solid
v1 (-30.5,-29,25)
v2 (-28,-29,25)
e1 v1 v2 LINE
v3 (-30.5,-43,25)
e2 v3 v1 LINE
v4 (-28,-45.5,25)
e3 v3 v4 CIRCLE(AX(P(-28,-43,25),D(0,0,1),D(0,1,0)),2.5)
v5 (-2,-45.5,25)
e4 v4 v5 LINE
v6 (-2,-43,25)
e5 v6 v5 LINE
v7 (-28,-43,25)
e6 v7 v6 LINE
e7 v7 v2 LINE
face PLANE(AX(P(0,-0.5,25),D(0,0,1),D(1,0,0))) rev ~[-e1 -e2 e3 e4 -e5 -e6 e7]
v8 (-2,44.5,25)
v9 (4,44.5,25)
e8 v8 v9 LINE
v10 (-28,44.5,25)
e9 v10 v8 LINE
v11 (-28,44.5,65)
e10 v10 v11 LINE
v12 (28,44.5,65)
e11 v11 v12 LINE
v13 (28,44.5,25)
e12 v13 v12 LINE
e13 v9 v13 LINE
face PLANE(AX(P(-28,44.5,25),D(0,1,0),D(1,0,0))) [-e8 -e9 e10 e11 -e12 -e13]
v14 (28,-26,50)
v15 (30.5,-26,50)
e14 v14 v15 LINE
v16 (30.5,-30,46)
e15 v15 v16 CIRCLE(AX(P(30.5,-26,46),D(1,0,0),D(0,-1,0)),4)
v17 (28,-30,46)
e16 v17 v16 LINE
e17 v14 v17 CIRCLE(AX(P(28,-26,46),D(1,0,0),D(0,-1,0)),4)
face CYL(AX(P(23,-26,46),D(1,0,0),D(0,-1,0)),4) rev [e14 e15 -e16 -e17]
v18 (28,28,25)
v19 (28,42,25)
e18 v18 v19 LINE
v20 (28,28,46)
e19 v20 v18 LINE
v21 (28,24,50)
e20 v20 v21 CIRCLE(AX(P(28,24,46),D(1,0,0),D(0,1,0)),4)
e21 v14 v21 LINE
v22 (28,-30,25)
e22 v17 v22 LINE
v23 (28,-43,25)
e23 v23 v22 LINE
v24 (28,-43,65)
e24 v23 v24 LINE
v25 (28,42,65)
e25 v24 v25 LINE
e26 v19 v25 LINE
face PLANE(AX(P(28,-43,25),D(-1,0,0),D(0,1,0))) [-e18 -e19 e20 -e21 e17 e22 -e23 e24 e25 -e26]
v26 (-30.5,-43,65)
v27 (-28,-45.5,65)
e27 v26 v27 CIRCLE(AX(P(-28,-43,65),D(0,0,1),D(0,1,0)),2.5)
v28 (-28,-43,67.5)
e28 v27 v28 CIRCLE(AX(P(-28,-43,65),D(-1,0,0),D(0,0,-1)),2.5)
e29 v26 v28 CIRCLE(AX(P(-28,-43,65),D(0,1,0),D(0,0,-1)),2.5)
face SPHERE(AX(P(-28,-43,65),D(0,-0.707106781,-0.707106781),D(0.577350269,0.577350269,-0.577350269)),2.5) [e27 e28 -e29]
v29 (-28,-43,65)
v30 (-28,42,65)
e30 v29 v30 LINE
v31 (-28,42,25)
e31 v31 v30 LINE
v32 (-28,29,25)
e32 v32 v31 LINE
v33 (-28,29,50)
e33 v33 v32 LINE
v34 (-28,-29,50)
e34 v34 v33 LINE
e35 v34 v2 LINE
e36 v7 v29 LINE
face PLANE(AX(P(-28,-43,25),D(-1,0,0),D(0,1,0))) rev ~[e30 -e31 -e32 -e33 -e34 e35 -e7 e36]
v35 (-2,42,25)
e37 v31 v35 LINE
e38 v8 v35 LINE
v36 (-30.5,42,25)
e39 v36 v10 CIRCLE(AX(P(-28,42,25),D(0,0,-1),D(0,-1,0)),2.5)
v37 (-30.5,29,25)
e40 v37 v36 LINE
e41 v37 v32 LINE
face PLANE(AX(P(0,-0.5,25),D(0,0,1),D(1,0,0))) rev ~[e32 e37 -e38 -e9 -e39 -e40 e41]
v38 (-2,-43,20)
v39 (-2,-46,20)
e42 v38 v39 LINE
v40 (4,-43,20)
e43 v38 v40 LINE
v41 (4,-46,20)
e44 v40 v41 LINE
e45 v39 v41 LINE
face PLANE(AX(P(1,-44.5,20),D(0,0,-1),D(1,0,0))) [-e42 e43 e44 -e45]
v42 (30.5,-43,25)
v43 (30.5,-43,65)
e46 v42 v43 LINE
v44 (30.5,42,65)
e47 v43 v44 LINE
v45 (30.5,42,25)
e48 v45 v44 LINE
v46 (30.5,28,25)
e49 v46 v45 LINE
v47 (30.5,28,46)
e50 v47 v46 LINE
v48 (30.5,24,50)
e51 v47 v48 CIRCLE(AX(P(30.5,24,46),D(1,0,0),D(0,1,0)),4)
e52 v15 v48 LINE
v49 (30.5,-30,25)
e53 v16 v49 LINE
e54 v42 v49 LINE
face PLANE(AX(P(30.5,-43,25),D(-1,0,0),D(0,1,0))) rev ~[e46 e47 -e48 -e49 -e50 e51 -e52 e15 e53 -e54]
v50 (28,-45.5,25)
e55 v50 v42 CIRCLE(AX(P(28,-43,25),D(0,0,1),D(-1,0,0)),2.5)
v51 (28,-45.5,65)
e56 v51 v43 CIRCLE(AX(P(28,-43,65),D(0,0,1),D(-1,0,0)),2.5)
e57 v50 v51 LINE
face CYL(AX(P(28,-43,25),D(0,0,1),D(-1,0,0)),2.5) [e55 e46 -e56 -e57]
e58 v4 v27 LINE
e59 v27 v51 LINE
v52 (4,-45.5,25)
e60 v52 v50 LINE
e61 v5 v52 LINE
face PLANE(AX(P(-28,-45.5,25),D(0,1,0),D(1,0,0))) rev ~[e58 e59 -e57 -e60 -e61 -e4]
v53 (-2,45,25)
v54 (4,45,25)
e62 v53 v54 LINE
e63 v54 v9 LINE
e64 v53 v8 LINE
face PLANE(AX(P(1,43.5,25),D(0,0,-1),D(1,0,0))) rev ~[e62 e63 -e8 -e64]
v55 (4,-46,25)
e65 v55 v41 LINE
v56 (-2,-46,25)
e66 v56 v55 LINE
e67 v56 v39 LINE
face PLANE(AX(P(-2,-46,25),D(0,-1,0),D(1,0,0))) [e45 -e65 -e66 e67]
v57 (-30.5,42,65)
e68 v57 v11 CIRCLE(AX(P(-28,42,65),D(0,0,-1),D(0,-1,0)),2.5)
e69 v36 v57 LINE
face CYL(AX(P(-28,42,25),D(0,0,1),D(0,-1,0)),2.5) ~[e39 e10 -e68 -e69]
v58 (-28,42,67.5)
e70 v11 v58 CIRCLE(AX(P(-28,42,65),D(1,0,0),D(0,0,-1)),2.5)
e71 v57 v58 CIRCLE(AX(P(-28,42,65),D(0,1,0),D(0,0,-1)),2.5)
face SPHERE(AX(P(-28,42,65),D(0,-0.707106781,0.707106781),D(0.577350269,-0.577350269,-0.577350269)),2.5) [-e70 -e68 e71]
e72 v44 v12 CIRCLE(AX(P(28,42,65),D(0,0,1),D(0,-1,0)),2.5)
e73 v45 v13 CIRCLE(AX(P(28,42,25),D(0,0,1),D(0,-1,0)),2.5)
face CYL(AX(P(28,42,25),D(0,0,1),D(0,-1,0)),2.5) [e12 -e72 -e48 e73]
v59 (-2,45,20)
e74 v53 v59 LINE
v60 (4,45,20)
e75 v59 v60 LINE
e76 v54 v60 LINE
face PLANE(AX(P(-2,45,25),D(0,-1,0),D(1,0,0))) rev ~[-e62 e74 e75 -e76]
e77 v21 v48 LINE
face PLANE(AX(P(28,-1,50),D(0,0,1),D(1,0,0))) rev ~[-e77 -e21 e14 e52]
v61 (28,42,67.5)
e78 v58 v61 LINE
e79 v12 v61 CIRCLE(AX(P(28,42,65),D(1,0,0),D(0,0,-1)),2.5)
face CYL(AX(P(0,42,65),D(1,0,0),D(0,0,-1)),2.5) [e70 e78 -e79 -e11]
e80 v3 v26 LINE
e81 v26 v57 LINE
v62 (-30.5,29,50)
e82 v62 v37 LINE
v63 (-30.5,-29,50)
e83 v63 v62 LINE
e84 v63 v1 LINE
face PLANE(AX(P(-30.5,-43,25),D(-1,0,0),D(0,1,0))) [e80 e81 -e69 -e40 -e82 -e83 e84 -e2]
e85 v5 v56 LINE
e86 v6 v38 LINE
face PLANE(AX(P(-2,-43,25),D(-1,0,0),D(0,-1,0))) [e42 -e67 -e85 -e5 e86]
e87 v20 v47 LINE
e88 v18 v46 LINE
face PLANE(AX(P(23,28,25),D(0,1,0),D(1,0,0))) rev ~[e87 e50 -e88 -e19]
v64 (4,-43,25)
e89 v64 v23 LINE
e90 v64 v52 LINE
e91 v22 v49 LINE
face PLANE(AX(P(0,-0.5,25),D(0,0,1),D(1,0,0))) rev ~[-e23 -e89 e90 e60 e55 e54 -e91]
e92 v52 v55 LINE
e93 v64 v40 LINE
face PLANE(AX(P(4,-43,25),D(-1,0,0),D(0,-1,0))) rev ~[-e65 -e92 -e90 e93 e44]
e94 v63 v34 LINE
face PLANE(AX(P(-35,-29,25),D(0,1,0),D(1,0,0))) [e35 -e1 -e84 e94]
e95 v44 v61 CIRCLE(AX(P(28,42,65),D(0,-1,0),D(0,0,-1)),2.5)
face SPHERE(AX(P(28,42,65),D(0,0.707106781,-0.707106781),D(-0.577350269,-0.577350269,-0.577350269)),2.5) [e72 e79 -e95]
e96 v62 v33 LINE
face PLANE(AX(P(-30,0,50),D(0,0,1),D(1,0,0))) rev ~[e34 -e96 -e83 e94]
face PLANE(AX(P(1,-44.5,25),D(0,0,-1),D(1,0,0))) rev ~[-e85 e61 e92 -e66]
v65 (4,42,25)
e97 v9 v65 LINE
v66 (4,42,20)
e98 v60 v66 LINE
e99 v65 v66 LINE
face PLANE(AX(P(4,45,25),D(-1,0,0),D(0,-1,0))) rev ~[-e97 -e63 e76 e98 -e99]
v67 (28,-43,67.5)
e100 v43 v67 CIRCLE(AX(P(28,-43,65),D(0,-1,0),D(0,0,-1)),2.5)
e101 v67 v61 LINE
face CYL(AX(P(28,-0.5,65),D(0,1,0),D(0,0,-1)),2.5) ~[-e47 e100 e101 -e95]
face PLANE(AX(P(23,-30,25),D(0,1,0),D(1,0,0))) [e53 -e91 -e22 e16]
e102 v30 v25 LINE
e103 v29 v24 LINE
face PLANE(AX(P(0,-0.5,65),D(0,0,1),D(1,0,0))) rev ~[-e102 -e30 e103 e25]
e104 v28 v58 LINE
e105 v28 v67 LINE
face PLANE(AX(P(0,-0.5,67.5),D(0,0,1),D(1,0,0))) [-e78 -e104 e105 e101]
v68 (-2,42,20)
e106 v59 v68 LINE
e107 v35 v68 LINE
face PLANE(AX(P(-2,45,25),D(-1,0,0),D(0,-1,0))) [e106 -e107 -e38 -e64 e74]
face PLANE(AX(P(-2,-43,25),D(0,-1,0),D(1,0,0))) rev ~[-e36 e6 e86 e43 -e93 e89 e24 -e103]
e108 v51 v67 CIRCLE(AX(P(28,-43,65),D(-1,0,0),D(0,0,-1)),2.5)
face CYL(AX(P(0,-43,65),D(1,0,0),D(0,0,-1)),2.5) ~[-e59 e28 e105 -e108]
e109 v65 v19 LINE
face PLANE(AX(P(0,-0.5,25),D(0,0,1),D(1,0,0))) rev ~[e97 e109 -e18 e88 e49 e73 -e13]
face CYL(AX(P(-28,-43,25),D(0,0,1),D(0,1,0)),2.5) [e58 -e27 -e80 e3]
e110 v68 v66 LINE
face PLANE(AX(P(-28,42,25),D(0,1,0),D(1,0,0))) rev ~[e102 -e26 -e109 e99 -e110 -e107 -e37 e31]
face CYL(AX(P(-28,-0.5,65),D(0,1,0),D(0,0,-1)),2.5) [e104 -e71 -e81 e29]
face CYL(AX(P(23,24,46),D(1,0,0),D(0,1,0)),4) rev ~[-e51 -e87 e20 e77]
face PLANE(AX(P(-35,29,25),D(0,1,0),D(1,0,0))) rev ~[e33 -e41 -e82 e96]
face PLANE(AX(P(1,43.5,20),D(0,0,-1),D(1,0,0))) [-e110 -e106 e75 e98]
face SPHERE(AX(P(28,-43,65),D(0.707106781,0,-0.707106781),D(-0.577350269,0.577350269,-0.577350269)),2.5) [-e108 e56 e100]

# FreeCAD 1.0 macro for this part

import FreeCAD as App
import Part
import Sketcher

V = App.Vector
Q = App.Units.Quantity


def edges_at(feature, points):
    """Names of the edges that pass closest to the given points."""
    edges = feature.Shape.Edges
    near = lambda p: min(range(len(edges)), key=lambda i: edges[i].distToShape(Part.Vertex(*p))[0])
    return sorted({f"Edge{near(p) + 1}" for p in points})


def faces_at(feature, points):
    """Names of the faces that lie closest to the given points."""
    faces = feature.Shape.Faces
    near = lambda p: min(range(len(faces)), key=lambda i: faces[i].distToShape(Part.Vertex(*p))[0])
    return sorted({f"Face{near(p) + 1}" for p in points})

doc = App.newDocument("Part")
params = doc.addObject("Spreadsheet::Sheet", "Params")
for row, (alias, value) in enumerate([
    ("sketch1_width", "10 mm"),
    ("sketch1_height", "58 mm"),
    ("pad1_length", "25 mm"),
    ("fillet_radius", "4 mm"),
    ("sketch2_width", "10 mm"),
    ("sketch2_height", "58 mm"),
    ("pad2_length", "25 mm"),
    ("sketch3_width", "56 mm"),
    ("sketch3_height", "85 mm"),
    ("pad3_length", "40 mm"),
    ("thickness_wall", "2.5 mm"),
    ("sketch4_width", "6 mm"),
    ("sketch4_height", "3 mm"),
    ("pad4_length", "5 mm"),
], start=1):
    params.set(f"A{row}", alias)
    params.set(f"B{row}", "=" + value)
    params.setAlias(f"B{row}", alias)

body = doc.addObject("PartDesign::Body", "Body")

# Sketch on XY plane
sketch1 = body.newObject("Sketcher::SketchObject", "Sketch")
sketch1.AttachmentSupport = (doc.getObject("XY_Plane"), [""])
sketch1.MapMode = "FlatFace"
sketch1.AttachmentOffset = App.Placement(V(0, 0, 25), App.Rotation())
sketch1.addGeometry([
    Part.LineSegment(V(23, 28, 0), V(23, -30, 0)),
    Part.LineSegment(V(23, -30, 0), V(33, -30, 0)),
    Part.LineSegment(V(33, -30, 0), V(33, 28, 0)),
    Part.LineSegment(V(33, 28, 0), V(23, 28, 0)),
], False)
sketch1.addConstraint([
    Sketcher.Constraint("Coincident", 0, 2, 1, 1),
    Sketcher.Constraint("Coincident", 1, 2, 2, 1),
    Sketcher.Constraint("Coincident", 2, 2, 3, 1),
    Sketcher.Constraint("Coincident", 3, 2, 0, 1),
    Sketcher.Constraint("Vertical", 0),
    Sketcher.Constraint("Horizontal", 1),
    Sketcher.Constraint("Vertical", 2),
    Sketcher.Constraint("Horizontal", 3),
    Sketcher.Constraint("DistanceX", 1, 1, 1, 2, Q("10 mm")),
    Sketcher.Constraint("DistanceY", 0, 2, 0, 1, Q("58 mm")),
    Sketcher.Constraint("DistanceX", -1, 1, 0, 2, Q("23 mm")),
    Sketcher.Constraint("DistanceY", 0, 2, -1, 1, Q("30 mm")),
])
sketch1.setExpression("Constraints[8]", "Params.sketch1_width")
sketch1.setExpression("Constraints[9]", "Params.sketch1_height")
pad1 = body.newObject("PartDesign::Pad", "Pad")
pad1.Profile = sketch1
pad1.setExpression("Length", "Params.pad1_length")
doc.recompute()

fillet = body.newObject("PartDesign::Fillet", "Fillet")
fillet.Base = (pad1, edges_at(pad1, [(28, -30, 50), (28, 28, 50)]))
fillet.setExpression("Radius", "Params.fillet_radius")
body2 = doc.addObject("PartDesign::Body", "Body001")

# Sketch on XY plane
sketch2 = body2.newObject("Sketcher::SketchObject", "Sketch001")
sketch2.AttachmentSupport = (doc.getObject("XY_Plane001"), [""])
sketch2.MapMode = "FlatFace"
sketch2.AttachmentOffset = App.Placement(V(0, 0, 25), App.Rotation())
sketch2.addGeometry([
    Part.LineSegment(V(-36, 28, 0), V(-36, -30, 0)),
    Part.LineSegment(V(-36, -30, 0), V(-26, -30, 0)),
    Part.LineSegment(V(-26, -30, 0), V(-26, 28, 0)),
    Part.LineSegment(V(-26, 28, 0), V(-36, 28, 0)),
], False)
sketch2.addConstraint([
    Sketcher.Constraint("Coincident", 0, 2, 1, 1),
    Sketcher.Constraint("Coincident", 1, 2, 2, 1),
    Sketcher.Constraint("Coincident", 2, 2, 3, 1),
    Sketcher.Constraint("Coincident", 3, 2, 0, 1),
    Sketcher.Constraint("Vertical", 0),
    Sketcher.Constraint("Horizontal", 1),
    Sketcher.Constraint("Vertical", 2),
    Sketcher.Constraint("Horizontal", 3),
    Sketcher.Constraint("DistanceX", 1, 1, 1, 2, Q("10 mm")),
    Sketcher.Constraint("DistanceY", 0, 2, 0, 1, Q("58 mm")),
    Sketcher.Constraint("DistanceX", 0, 2, -1, 1, Q("36 mm")),
    Sketcher.Constraint("DistanceY", 0, 2, -1, 1, Q("30 mm")),
])
sketch2.setExpression("Constraints[8]", "Params.sketch2_width")
sketch2.setExpression("Constraints[9]", "Params.sketch2_height")
pad2 = body2.newObject("PartDesign::Pad", "Pad001")
pad2.Profile = sketch2
pad2.setExpression("Length", "Params.pad2_length")
body3 = doc.addObject("PartDesign::Body", "Body002")

# Sketch on XY plane
sketch3 = body3.newObject("Sketcher::SketchObject", "Sketch002")
sketch3.AttachmentSupport = (doc.getObject("XY_Plane002"), [""])
sketch3.MapMode = "FlatFace"
sketch3.AttachmentOffset = App.Placement(V(0, 0, 38), App.Rotation())
sketch3.addGeometry([
    Part.LineSegment(V(-31, 39, 0), V(-31, -46, 0)),
    Part.LineSegment(V(-31, -46, 0), V(25, -46, 0)),
    Part.LineSegment(V(25, -46, 0), V(25, 39, 0)),
    Part.LineSegment(V(25, 39, 0), V(-31, 39, 0)),
], False)
sketch3.addConstraint([
    Sketcher.Constraint("Coincident", 0, 2, 1, 1),
    Sketcher.Constraint("Coincident", 1, 2, 2, 1),
    Sketcher.Constraint("Coincident", 2, 2, 3, 1),
    Sketcher.Constraint("Coincident", 3, 2, 0, 1),
    Sketcher.Constraint("Vertical", 0),
    Sketcher.Constraint("Horizontal", 1),
    Sketcher.Constraint("Vertical", 2),
    Sketcher.Constraint("Horizontal", 3),
    Sketcher.Constraint("DistanceX", 1, 1, 1, 2, Q("56 mm")),
    Sketcher.Constraint("DistanceY", 0, 2, 0, 1, Q("85 mm")),
    Sketcher.Constraint("DistanceX", 0, 2, -1, 1, Q("31 mm")),
    Sketcher.Constraint("DistanceY", 0, 2, -1, 1, Q("46 mm")),
])
sketch3.setExpression("Constraints[8]", "Params.sketch3_width")
sketch3.setExpression("Constraints[9]", "Params.sketch3_height")
pad3 = body3.newObject("PartDesign::Pad", "Pad002")
pad3.Profile = sketch3
pad3.setExpression("Length", "Params.pad3_length")
doc.recompute()

thickness = body3.newObject("PartDesign::Thickness", "Thickness")
thickness.Base = (pad3, faces_at(pad3, [(-3, -3.5, 38)]))
thickness.setExpression("Value", "Params.thickness_wall")
thickness.Reversed = False
thickness.Join = "Arc"
body4 = doc.addObject("PartDesign::Body", "Body003")
doc.recompute()

body3.Placement = App.Placement(V(2, 2, -13), App.Rotation(V(0, 0, 1), 0))
boolean = body4.newObject("PartDesign::Boolean", "Boolean")
boolean.Type = "Fuse"
boolean.addObjects([body3])
doc.recompute()

boolean2 = body4.newObject("PartDesign::Boolean", "Boolean001")
boolean2.Type = "Cut"
boolean2.addObjects([body2])
body5 = doc.addObject("PartDesign::Body", "Body004")
doc.recompute()

body4.Placement = App.Placement(V(1, 1, 0), App.Rotation(V(0, 0, 1), 0))
boolean3 = body5.newObject("PartDesign::Boolean", "Boolean002")
boolean3.Type = "Fuse"
boolean3.addObjects([body4])

# Sketch on XY plane
sketch4 = body5.newObject("Sketcher::SketchObject", "Sketch003")
sketch4.AttachmentSupport = (doc.getObject("XY_Plane004"), [""])
sketch4.MapMode = "FlatFace"
sketch4.AttachmentOffset = App.Placement(V(0, 0, 25), App.Rotation())
sketch4.addGeometry([
    Part.LineSegment(V(-2, -46, 0), V(-2, -43, 0)),  # 0
    Part.LineSegment(V(-2, -43, 0), V(4, -43, 0)),  # 1
    Part.LineSegment(V(4, -43, 0), V(4, -46, 0)),  # 2
    Part.LineSegment(V(4, -46, 0), V(-2, -46, 0)),  # 3
    Part.LineSegment(V(-2, 42, 0), V(-2, 45, 0)),  # 4
    Part.LineSegment(V(-2, 45, 0), V(4, 45, 0)),  # 5
    Part.LineSegment(V(4, 45, 0), V(4, 42, 0)),  # 6
    Part.LineSegment(V(4, 42, 0), V(-2, 42, 0)),  # 7
], False)
sketch4.addConstraint([
    Sketcher.Constraint("Coincident", 0, 2, 1, 1),
    Sketcher.Constraint("Coincident", 1, 2, 2, 1),
    Sketcher.Constraint("Coincident", 2, 2, 3, 1),
    Sketcher.Constraint("Coincident", 3, 2, 0, 1),
    Sketcher.Constraint("Coincident", 4, 2, 5, 1),
    Sketcher.Constraint("Coincident", 5, 2, 6, 1),
    Sketcher.Constraint("Coincident", 6, 2, 7, 1),
    Sketcher.Constraint("Coincident", 7, 2, 4, 1),
    Sketcher.Constraint("Vertical", 0),
    Sketcher.Constraint("Horizontal", 1),
    Sketcher.Constraint("Vertical", 2),
    Sketcher.Constraint("Horizontal", 3),
    Sketcher.Constraint("Vertical", 4),
    Sketcher.Constraint("Horizontal", 5),
    Sketcher.Constraint("Vertical", 6),
    Sketcher.Constraint("Horizontal", 7),
    Sketcher.Constraint("Vertical", 3, 2, 4, 2),
    Sketcher.Constraint("Vertical", 2, 2, 5, 2),
    Sketcher.Constraint("Equal", 2, 4),
    Sketcher.Constraint("DistanceX", 1, 1, 1, 2, Q("6 mm")),
    Sketcher.Constraint("DistanceY", 0, 1, 0, 2, Q("3 mm")),
    Sketcher.Constraint("DistanceX", 0, 2, -1, 1, Q("2 mm")),
    Sketcher.Constraint("DistanceY", 0, 2, -1, 1, Q("43 mm")),
    Sketcher.Constraint("DistanceY", -1, 1, 4, 2, Q("45 mm")),
])
sketch4.setExpression("Constraints[19]", "Params.sketch4_width")
sketch4.setExpression("Constraints[20]", "Params.sketch4_height")
pad4 = body5.newObject("PartDesign::Pad", "Pad003")
pad4.Profile = sketch4
pad4.setExpression("Length", "Params.pad4_length")
pad4.Reversed = True
doc.recompute()

boolean4 = body5.newObject("PartDesign::Boolean", "Boolean003")
boolean4.Type = "Cut"
boolean4.addObjects([body])

doc.recompute()
